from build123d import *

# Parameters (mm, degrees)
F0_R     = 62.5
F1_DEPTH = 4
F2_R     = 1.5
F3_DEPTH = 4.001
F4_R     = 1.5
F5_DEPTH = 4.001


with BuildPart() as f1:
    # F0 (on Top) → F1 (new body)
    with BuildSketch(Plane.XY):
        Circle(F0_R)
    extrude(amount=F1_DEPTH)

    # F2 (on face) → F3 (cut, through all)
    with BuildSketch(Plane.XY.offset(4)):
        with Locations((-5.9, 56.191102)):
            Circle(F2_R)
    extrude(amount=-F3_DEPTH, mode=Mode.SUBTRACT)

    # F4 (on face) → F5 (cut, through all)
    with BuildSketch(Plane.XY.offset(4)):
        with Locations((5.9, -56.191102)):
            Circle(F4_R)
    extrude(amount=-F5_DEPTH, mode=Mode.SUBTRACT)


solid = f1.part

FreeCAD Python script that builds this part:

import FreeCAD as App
import Part
import Sketcher
Q = App.Units.Quantity

doc = App.newDocument("Part")
body = doc.addObject("PartDesign::Body", "Body")

# Sketch on XY plane
sketch1 = body.newObject("Sketcher::SketchObject", "Sketch")
sketch1.AttachmentSupport = (doc.getObject("XY_Plane"), [""])
sketch1.MapMode = "FlatFace"
sketch1.addGeometry(Part.Circle(App.Vector(0, 0, 0), App.Vector(0, 0, 1), 62), False)
sketch1.addConstraint([
    Sketcher.Constraint("Coincident", 0, 3, -1, 1),
    Sketcher.Constraint("Diameter", 0, Q("125 mm")),
])
pad1 = body.newObject("PartDesign::Pad", "Pad")
pad1.Profile = sketch1
pad1.Length = 4

# Sketch on XY plane
sketch2 = body.newObject("Sketcher::SketchObject", "Sketch001")
sketch2.AttachmentSupport = (doc.getObject("XY_Plane"), [""])
sketch2.MapMode = "FlatFace"
sketch2.AttachmentOffset = App.Placement(App.Vector(0, 0, 4), App.Rotation())
sketch2.addGeometry(Part.Circle(App.Vector(-5.9, 56.2, 0), App.Vector(0, 0, 1), 1.5), False)
sketch2.addConstraint([
    Sketcher.Constraint("Diameter", 0, Q("3 mm")),
    Sketcher.Constraint("DistanceX", 0, 3, -1, 1, Q("5.9 mm")),
    Sketcher.Constraint("DistanceY", -1, 1, 0, 3, Q("56.191102 mm")),
])
pocket1 = body.newObject("PartDesign::Pocket", "Pocket")
pocket1.Profile = sketch2
pocket1.Type = "ThroughAll"

# Sketch on XY plane
sketch3 = body.newObject("Sketcher::SketchObject", "Sketch002")
sketch3.AttachmentSupport = (doc.getObject("XY_Plane"), [""])
sketch3.MapMode = "FlatFace"
sketch3.AttachmentOffset = App.Placement(App.Vector(0, 0, 4), App.Rotation())
sketch3.addGeometry(Part.Circle(App.Vector(5.9, -56.2, 0), App.Vector(0, 0, 1), 1.5), False)
sketch3.addConstraint([
    Sketcher.Constraint("Diameter", 0, Q("3 mm")),
    Sketcher.Constraint("DistanceX", -1, 1, 0, 3, Q("5.9 mm")),
    Sketcher.Constraint("DistanceY", 0, 3, -1, 1, Q("56.191102 mm")),
])
pocket2 = body.newObject("PartDesign::Pocket", "Pocket001")
pocket2.Profile = sketch3
pocket2.Type = "ThroughAll"

doc.recompute()
